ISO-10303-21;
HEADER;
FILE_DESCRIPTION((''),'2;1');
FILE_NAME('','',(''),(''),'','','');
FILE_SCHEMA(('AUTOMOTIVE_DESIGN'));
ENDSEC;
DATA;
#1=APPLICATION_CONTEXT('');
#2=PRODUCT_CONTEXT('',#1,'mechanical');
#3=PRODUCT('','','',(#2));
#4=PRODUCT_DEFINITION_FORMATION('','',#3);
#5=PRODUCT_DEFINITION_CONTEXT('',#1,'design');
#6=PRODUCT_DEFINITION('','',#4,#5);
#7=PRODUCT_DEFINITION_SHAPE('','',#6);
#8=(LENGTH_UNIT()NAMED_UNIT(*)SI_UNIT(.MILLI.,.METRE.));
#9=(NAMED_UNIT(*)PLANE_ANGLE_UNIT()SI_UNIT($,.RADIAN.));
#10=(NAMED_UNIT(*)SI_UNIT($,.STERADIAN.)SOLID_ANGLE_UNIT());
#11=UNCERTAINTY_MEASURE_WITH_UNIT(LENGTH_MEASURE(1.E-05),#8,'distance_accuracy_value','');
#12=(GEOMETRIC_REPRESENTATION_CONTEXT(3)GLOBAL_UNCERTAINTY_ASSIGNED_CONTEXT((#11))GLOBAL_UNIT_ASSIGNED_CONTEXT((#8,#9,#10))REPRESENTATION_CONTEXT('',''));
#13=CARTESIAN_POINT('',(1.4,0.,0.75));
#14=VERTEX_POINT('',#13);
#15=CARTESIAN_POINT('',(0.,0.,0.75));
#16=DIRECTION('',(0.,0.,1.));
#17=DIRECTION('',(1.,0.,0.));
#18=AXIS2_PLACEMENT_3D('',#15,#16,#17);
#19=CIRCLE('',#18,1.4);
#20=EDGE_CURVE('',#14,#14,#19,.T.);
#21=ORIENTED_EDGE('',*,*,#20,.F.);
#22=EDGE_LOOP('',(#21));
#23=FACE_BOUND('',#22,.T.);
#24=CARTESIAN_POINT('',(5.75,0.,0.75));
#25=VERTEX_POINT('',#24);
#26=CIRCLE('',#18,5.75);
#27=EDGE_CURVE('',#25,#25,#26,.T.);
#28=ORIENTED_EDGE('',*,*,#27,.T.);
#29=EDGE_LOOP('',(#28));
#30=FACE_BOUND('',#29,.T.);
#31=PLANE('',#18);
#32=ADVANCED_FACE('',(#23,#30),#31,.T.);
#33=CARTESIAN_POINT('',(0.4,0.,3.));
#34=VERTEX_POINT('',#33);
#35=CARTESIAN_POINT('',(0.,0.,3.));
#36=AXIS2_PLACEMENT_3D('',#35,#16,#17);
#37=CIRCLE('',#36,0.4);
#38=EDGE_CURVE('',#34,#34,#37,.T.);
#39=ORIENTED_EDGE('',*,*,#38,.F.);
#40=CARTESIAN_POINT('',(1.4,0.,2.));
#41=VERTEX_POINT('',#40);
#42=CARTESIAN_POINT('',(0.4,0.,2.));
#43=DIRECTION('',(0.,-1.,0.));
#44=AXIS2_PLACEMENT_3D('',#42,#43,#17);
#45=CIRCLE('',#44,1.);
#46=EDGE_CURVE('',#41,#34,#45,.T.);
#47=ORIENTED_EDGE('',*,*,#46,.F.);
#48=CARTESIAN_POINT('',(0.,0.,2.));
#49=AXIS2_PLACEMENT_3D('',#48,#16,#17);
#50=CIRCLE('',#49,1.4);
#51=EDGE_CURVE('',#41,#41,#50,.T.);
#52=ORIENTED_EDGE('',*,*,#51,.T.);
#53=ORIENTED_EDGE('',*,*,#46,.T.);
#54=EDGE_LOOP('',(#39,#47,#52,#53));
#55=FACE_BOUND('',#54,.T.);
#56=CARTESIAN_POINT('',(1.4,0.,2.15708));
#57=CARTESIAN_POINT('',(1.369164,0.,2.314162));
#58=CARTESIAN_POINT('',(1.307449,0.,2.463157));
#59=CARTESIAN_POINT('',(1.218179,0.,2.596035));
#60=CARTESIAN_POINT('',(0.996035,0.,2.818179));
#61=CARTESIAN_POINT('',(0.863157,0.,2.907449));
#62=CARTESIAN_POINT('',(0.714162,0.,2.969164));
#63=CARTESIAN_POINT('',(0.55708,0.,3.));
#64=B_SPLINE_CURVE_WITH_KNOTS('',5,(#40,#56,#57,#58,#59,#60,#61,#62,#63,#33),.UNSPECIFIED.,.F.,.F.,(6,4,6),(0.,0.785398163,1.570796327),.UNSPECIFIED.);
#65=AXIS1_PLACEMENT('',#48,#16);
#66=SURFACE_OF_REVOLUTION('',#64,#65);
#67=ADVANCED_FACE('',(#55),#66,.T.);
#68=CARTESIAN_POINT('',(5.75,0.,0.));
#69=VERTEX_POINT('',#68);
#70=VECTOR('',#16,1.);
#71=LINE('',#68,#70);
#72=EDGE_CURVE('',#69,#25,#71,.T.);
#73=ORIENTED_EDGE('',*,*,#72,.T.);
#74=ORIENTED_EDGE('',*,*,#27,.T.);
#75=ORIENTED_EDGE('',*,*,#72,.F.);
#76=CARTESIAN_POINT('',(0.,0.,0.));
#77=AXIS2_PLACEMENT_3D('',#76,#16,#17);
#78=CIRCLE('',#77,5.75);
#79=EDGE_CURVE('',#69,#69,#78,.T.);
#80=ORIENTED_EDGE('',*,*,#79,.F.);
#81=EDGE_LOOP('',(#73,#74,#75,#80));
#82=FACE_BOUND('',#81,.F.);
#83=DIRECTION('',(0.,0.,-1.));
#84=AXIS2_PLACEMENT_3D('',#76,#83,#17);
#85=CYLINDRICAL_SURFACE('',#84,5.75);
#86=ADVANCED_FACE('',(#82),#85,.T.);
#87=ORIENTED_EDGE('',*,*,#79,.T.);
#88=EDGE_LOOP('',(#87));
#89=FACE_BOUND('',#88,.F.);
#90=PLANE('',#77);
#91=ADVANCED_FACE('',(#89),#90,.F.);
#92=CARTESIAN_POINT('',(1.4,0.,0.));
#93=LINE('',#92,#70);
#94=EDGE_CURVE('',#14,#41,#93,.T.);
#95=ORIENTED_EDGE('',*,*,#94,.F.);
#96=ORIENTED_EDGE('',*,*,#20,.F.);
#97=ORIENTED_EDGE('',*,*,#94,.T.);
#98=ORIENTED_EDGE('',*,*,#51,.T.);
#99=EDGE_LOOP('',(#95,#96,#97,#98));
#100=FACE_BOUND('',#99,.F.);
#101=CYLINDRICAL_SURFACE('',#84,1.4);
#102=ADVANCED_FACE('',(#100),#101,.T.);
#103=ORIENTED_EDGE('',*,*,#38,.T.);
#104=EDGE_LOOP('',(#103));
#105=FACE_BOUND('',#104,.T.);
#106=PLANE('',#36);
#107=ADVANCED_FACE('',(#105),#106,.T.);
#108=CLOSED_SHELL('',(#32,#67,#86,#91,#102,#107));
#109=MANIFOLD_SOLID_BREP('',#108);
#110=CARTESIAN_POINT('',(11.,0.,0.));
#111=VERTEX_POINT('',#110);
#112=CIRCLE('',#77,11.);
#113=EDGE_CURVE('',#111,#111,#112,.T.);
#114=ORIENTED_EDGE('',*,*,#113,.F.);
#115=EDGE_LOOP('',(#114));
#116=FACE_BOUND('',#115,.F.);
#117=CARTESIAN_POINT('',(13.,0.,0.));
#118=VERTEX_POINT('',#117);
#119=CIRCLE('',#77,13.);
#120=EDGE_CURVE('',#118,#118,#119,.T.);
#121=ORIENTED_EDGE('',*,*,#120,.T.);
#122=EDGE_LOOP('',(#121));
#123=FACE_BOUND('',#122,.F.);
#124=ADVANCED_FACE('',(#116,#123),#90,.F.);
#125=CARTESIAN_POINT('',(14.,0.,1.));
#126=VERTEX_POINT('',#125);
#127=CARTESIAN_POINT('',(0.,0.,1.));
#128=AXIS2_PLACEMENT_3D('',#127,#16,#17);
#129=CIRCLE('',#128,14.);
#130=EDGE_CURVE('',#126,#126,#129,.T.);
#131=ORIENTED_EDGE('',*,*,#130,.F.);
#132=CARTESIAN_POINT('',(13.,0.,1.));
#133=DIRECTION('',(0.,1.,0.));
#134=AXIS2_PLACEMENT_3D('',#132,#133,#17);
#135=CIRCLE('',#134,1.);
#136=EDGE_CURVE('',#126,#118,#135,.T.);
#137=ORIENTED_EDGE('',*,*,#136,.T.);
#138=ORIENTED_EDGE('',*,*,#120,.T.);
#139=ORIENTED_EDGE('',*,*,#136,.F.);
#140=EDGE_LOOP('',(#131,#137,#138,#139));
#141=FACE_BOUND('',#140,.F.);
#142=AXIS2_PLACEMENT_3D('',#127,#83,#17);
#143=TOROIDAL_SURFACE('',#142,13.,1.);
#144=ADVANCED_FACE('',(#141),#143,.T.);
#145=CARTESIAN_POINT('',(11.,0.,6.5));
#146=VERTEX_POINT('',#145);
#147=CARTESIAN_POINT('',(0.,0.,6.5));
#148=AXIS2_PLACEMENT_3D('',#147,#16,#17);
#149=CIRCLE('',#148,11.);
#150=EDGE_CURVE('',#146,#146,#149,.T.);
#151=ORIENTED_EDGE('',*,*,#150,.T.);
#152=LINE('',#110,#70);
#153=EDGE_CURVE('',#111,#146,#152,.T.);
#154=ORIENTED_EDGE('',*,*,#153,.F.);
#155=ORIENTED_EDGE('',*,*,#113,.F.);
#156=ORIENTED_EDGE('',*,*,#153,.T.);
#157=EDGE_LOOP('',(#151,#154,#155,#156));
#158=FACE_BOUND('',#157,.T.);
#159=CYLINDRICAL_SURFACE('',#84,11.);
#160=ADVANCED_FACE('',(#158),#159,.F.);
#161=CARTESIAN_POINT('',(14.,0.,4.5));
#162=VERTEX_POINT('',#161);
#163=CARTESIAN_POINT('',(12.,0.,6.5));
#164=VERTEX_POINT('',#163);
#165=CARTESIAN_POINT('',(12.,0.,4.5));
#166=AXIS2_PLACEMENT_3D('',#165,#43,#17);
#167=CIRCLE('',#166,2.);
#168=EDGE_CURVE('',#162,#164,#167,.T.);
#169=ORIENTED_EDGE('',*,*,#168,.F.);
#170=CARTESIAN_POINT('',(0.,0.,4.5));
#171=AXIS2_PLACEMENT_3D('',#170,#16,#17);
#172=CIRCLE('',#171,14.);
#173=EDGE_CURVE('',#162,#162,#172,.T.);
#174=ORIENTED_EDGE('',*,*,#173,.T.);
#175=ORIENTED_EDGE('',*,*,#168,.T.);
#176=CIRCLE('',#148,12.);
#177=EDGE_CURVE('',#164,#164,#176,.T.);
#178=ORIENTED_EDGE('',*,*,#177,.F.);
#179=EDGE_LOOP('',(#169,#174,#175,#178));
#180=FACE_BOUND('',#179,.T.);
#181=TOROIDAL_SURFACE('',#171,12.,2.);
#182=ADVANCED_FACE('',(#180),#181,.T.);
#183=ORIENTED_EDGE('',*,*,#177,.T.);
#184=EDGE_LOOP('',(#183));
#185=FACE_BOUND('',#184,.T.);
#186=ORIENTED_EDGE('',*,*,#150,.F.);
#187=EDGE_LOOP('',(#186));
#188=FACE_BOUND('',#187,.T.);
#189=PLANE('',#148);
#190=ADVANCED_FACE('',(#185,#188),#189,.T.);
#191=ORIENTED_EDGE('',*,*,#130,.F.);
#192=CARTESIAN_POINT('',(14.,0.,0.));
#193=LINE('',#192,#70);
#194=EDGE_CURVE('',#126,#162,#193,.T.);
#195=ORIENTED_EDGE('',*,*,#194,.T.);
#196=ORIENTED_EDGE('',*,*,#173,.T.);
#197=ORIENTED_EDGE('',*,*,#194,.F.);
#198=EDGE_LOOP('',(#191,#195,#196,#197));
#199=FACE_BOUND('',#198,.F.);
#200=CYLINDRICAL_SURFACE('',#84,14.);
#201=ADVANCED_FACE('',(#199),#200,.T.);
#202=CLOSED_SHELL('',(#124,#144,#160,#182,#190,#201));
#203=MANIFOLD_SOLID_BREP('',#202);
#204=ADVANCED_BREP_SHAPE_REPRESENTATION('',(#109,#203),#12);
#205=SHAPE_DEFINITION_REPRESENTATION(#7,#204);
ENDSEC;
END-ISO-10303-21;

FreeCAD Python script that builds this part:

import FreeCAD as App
import Part
import Sketcher

V = App.Vector


def edges_at(feature, points):
    """Names of the edges that pass closest to the given points."""
    edges = feature.Shape.Edges
    near = lambda p: min(range(len(edges)), key=lambda i: edges[i].distToShape(Part.Vertex(*p))[0])
    return sorted({f"Edge{near(p) + 1}" for p in points})

doc = App.newDocument("Part")
body = doc.addObject("PartDesign::Body", "Body")

# Sketch on XY plane
sketch1 = doc.addObject("Sketcher::SketchObject", "Sketch")
body.addObject(sketch1)
sketch1.AttachmentSupport = (doc.XY_Plane, [""])
sketch1.MapMode = "FlatFace"
sketch1.addGeometry(Part.Circle(V(0, 0, 0), V(0, 0, 1), 14), False)
sketch1.addGeometry(Part.Circle(V(0, 0, 0), V(0, 0, 1), 11), False)
sketch1.addConstraint(Sketcher.Constraint("Coincident", 0, 3, -1, 1))
sketch1.addConstraint(Sketcher.Constraint("Coincident", 1, 3, -1, 1))
sketch1.addConstraint(Sketcher.Constraint("Diameter", 0, 28.0))
sketch1.addConstraint(Sketcher.Constraint("Diameter", 1, 22.0))
pad1 = doc.addObject("PartDesign::Pad", "Pad")
body.addObject(pad1)
pad1.Profile = sketch1
pad1.Length = 6.5
doc.recompute()

fillet = doc.addObject("PartDesign::Fillet", "Fillet")
body.addObject(fillet)
fillet.Base = (pad1, edges_at(pad1, [(-14, 0, 6.5)]))
fillet.Radius = 2
doc.recompute()

fillet2 = doc.addObject("PartDesign::Fillet", "Fillet001")
body.addObject(fillet2)
fillet2.Base = (fillet, edges_at(fillet, [(-14, 0, 0)]))
fillet2.Radius = 1
body2 = doc.addObject("PartDesign::Body", "Body001")

# Sketch on XY plane
sketch2 = doc.addObject("Sketcher::SketchObject", "Sketch001")
body2.addObject(sketch2)
sketch2.AttachmentSupport = (doc.getObject("XY_Plane001"), [""])
sketch2.MapMode = "FlatFace"
sketch2.addGeometry(Part.Circle(V(0, 0, 0), V(0, 0, 1), 5.75), False)
sketch2.addGeometry(Part.Circle(V(0, 0, 0), V(0, 0, 1), 1.4), False)
sketch2.addConstraint(Sketcher.Constraint("Coincident", 0, 3, -1, 1))
sketch2.addConstraint(Sketcher.Constraint("Coincident", 1, 3, -1, 1))
sketch2.addConstraint(Sketcher.Constraint("Diameter", 0, 11.5))
sketch2.addConstraint(Sketcher.Constraint("Diameter", 1, 2.8))
pad2 = doc.addObject("PartDesign::Pad", "Pad001")
body2.addObject(pad2)
pad2.Profile = sketch2
pad2.Length = 0.75

# Sketch on XY plane
sketch3 = doc.addObject("Sketcher::SketchObject", "Sketch002")
body2.addObject(sketch3)
sketch3.AttachmentSupport = (doc.getObject("XY_Plane001"), [""])
sketch3.MapMode = "FlatFace"
sketch3.addGeometry(Part.Circle(V(0, 0, 0), V(0, 0, 1), 1.4), False)
sketch3.addConstraint(Sketcher.Constraint("Coincident", 0, 3, -1, 1))
sketch3.addConstraint(Sketcher.Constraint("Diameter", 0, 2.8))
pad3 = doc.addObject("PartDesign::Pad", "Pad002")
body2.addObject(pad3)
pad3.Profile = sketch3
pad3.Length = 3
doc.recompute()

fillet3 = doc.addObject("PartDesign::Fillet", "Fillet002")
body2.addObject(fillet3)
fillet3.Base = (pad3, edges_at(pad3, [(-1.4, 0, 3)]))
fillet3.Radius = 1

doc.recompute()
